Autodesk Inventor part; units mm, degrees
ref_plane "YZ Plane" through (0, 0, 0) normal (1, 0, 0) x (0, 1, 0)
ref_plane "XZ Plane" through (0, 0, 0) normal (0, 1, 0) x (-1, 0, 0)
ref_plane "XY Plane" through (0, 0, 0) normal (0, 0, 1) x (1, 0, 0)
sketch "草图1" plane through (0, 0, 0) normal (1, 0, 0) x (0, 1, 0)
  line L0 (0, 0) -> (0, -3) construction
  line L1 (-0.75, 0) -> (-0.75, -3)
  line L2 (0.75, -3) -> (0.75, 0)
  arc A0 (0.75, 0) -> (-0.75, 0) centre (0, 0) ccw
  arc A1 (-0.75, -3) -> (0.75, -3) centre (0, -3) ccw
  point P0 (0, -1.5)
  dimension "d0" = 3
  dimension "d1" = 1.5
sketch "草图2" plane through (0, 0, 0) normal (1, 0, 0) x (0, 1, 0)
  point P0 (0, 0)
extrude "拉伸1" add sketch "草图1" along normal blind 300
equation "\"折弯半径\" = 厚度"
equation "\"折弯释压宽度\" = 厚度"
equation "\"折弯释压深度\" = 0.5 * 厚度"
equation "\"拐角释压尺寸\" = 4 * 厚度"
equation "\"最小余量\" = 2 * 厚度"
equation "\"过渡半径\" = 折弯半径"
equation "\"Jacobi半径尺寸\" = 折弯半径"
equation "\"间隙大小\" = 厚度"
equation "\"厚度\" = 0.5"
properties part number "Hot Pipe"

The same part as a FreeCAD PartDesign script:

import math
import FreeCAD as App
import Part
import Sketcher

doc = App.newDocument("Part")
body = doc.addObject("PartDesign::Body", "Body")

sketch1 = body.newObject("Sketcher::SketchObject", "Sketch")
sketch1.AttachmentSupport = (doc.getObject("YZ_Plane"), [""])
sketch1.MapMode = "FlatFace"
sketch1.addGeometry(Part.ArcOfCircle(Part.Circle(App.Vector(0, 0, 0), App.Vector(0, 0, 1), 0.8), math.radians(0), math.radians(180)), False)
sketch1.addGeometry(Part.LineSegment(App.Vector(-0.8, 0, 0), App.Vector(-0.8, -3, 0)), False)
sketch1.addGeometry(Part.ArcOfCircle(Part.Circle(App.Vector(0, -3, 0), App.Vector(0, 0, 1), 0.8), math.radians(180), math.radians(360)), False)
sketch1.addGeometry(Part.LineSegment(App.Vector(0.8, -3, 0), App.Vector(0.8, 0, 0)), False)
sketch1.addConstraint(Sketcher.Constraint("Tangent", 0, 2, 1, 1))
sketch1.addConstraint(Sketcher.Constraint("Tangent", 1, 2, 2, 1))
sketch1.addConstraint(Sketcher.Constraint("Tangent", 2, 2, 3, 1))
sketch1.addConstraint(Sketcher.Constraint("Tangent", 3, 2, 0, 1))
sketch1.addConstraint(Sketcher.Constraint("Vertical", 1))
sketch1.addConstraint(Sketcher.Constraint("Vertical", 3))
sketch1.addConstraint(Sketcher.Constraint("Coincident", 0, 3, -1, 1))
sketch1.addConstraint(Sketcher.Constraint("DistanceY", 1, 2, 1, 1, 3.0))
sketch1.addConstraint(Sketcher.Constraint("Radius", 0, 0.75))
pad1 = body.newObject("PartDesign::Pad", "Pad")
pad1.Profile = sketch1
pad1.Length = 300

doc.recompute()
